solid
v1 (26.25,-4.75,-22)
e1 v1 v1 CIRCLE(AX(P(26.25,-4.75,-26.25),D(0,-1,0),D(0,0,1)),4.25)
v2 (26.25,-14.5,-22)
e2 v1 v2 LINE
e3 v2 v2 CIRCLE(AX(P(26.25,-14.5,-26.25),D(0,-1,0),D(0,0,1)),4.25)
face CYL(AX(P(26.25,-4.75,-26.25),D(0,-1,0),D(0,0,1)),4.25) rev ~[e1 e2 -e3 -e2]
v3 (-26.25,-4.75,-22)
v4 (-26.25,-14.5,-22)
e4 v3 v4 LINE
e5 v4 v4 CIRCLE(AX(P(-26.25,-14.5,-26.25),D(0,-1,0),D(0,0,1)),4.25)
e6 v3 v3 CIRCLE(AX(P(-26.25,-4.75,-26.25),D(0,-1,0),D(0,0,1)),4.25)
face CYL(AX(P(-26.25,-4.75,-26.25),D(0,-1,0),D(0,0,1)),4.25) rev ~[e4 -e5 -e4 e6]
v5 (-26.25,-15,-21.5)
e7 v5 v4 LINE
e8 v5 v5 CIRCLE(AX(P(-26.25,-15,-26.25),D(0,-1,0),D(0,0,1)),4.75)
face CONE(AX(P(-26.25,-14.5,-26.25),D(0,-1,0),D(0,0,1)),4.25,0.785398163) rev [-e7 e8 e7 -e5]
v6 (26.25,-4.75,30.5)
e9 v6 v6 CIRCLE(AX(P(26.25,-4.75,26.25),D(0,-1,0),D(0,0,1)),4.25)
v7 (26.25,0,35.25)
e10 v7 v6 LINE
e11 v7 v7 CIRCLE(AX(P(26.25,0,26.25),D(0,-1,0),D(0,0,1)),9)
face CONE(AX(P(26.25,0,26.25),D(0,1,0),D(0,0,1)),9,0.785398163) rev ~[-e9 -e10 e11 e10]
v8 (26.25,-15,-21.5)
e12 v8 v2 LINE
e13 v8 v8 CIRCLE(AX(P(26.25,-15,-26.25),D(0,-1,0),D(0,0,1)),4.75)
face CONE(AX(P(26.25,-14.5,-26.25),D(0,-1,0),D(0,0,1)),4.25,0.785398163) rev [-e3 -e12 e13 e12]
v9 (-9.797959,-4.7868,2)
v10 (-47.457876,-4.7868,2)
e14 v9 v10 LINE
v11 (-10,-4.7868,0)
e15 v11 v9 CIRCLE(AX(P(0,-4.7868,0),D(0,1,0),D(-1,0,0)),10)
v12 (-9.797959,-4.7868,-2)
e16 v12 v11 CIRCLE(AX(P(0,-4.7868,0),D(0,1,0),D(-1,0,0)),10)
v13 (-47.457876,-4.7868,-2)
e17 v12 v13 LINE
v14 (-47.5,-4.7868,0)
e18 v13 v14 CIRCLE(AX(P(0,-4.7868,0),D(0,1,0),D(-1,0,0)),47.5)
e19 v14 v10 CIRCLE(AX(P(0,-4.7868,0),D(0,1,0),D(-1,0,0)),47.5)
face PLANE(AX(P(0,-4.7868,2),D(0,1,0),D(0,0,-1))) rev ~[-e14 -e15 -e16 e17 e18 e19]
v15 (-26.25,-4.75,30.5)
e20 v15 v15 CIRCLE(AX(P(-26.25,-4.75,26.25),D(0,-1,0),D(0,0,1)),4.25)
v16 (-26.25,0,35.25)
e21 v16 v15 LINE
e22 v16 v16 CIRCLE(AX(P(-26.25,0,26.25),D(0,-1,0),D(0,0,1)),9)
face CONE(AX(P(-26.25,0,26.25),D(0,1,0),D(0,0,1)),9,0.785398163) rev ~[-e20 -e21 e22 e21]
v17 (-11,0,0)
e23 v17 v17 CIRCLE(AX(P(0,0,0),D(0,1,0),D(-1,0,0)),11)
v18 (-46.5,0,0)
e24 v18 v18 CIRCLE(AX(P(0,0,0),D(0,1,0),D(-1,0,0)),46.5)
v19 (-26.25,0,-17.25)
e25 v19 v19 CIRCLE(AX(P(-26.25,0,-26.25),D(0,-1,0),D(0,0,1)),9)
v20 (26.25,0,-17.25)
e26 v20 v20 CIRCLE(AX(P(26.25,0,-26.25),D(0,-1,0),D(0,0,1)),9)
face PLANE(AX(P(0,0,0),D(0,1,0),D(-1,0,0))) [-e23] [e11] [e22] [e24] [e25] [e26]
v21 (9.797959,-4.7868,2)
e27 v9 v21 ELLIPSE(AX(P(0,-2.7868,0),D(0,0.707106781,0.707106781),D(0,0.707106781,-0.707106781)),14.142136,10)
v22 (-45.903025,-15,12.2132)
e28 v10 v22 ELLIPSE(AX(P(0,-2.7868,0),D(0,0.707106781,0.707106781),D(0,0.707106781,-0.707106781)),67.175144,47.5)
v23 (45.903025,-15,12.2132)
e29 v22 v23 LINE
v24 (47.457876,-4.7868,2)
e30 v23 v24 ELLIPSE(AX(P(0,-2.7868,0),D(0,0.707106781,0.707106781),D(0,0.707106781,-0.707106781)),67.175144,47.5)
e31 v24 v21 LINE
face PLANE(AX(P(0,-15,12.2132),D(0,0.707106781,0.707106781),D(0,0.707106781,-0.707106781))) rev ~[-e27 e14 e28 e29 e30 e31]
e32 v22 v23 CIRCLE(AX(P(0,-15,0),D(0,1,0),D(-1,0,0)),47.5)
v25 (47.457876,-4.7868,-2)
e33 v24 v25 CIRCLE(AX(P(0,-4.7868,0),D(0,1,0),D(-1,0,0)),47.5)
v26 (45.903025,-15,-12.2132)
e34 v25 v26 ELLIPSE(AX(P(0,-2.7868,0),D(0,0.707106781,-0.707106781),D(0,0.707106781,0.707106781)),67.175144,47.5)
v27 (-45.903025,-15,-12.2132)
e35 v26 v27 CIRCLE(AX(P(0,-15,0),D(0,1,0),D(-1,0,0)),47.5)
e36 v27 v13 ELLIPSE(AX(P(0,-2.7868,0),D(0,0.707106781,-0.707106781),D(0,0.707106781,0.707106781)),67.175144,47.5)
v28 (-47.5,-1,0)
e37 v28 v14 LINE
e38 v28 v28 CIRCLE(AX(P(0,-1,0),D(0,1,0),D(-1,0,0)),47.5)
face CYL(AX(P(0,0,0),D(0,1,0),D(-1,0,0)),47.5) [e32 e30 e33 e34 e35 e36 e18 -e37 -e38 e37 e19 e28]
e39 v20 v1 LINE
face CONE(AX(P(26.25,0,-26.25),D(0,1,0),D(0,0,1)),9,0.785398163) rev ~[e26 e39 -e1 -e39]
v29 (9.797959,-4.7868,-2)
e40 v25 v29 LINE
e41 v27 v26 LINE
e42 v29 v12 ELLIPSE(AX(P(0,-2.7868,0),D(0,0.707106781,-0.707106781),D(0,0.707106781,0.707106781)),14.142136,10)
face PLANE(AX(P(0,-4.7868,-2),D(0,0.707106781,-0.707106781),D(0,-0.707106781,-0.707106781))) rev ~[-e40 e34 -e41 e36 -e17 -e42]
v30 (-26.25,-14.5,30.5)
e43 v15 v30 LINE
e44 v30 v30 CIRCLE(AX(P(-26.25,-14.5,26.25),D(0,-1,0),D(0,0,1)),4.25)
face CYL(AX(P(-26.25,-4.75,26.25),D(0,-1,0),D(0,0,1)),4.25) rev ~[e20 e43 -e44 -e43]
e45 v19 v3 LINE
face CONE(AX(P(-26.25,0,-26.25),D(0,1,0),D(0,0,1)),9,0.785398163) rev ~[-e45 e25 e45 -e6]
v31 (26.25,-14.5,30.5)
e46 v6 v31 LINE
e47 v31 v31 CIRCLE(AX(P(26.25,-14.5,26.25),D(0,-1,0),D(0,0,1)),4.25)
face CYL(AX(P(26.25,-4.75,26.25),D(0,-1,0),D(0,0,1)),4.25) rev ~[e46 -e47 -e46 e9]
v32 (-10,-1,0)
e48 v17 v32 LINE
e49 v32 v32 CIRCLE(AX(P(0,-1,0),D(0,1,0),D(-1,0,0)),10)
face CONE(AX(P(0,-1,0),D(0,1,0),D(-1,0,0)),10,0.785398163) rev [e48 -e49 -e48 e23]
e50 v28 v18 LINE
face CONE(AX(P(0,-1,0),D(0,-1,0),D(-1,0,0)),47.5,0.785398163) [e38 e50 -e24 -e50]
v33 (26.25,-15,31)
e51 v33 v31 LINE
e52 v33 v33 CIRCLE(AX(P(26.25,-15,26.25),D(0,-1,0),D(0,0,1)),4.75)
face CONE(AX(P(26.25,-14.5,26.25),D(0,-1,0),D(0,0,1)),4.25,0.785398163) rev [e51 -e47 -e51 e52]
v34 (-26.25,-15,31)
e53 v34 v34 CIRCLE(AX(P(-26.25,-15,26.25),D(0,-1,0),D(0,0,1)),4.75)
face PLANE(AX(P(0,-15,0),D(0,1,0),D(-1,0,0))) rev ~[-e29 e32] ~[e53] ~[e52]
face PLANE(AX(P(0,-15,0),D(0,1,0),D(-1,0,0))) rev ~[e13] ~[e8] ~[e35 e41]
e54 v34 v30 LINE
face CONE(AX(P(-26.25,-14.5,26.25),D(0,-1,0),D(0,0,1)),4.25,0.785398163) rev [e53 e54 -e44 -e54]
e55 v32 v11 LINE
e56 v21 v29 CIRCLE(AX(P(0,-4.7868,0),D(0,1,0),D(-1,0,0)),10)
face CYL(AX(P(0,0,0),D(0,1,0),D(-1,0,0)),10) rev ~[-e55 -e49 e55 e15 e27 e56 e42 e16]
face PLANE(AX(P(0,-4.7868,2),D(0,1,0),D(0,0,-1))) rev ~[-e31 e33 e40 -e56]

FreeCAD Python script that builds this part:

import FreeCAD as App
import Part
import Sketcher
from FreeCAD import Vector
Q = App.Units.Quantity


def edges_at(feature, points):
    """Names of the edges that pass closest to the given points."""
    edges = feature.Shape.Edges
    near = lambda p: min(range(len(edges)), key=lambda i: edges[i].distToShape(Part.Vertex(*p))[0])
    return sorted({f"Edge{near(p) + 1}" for p in points})


def add_polygon(sketch, points):
    """Adds a closed chain of lines whose ends are joined by coincident constraints."""
    first, n = sketch.GeometryCount, len(points)
    for a, b in zip(points, points[1:] + points[:1]):
        sketch.addGeometry(Part.LineSegment(App.Vector(*a, 0), App.Vector(*b, 0)), False)
    for i in range(n):
        sketch.addConstraint(Sketcher.Constraint("Coincident", first + i, 2, first + (i + 1) % n, 1))

doc = App.newDocument("Part")
body = doc.addObject("PartDesign::Body", "Body")

# Sketch on XZ plane
sketch1 = body.newObject("Sketcher::SketchObject", "Sketch")
sketch1.AttachmentSupport = (doc.getObject("XZ_Plane"), [""])
sketch1.MapMode = "FlatFace"
sketch1.addGeometry(Part.Circle(Vector(0, 0, 0), Vector(0, 0, 1), 47.5), False)
sketch1.addGeometry(Part.Circle(Vector(0, 0, 0), Vector(0, 0, 1), 10), False)
sketch1.addConstraint(Sketcher.Constraint("Coincident", 0, 3, -1, 1))
sketch1.addConstraint(Sketcher.Constraint("Coincident", 1, 3, -1, 1))
sketch1.addConstraint(Sketcher.Constraint("Diameter", 0, Q("95 mm")))
sketch1.addConstraint(Sketcher.Constraint("Diameter", 1, Q("20 mm")))
pad1 = body.newObject("PartDesign::Pad", "Pad")
pad1.Profile = sketch1
pad1.Length = 15

# Sketch on XZ plane
sketch2 = body.newObject("Sketcher::SketchObject", "Sketch001")
sketch2.AttachmentSupport = (doc.getObject("XZ_Plane"), [""])
sketch2.MapMode = "FlatFace"
sketch2.addGeometry(Part.Circle(Vector(-26.25, -26.25, 0), Vector(0, 0, 1), 4.25), False)
sketch2.addGeometry(Part.Circle(Vector(26.25, -26.25, 0), Vector(0, 0, 1), 4.25), False)
sketch2.addGeometry(Part.Circle(Vector(26.25, 26.25, 0), Vector(0, 0, 1), 4.25), False)
sketch2.addGeometry(Part.Circle(Vector(-26.25, 26.25, 0), Vector(0, 0, 1), 4.25), False)
sketch2.addConstraint(Sketcher.Constraint("Equal", 0, 1))
sketch2.addConstraint(Sketcher.Constraint("Equal", 1, 2))
sketch2.addConstraint(Sketcher.Constraint("Equal", 2, 3))
sketch2.addConstraint(Sketcher.Constraint("Symmetric", 0, 3, 2, 3, -1, 1))
sketch2.addConstraint(Sketcher.Constraint("Symmetric", 1, 3, 3, 3, -1, 1))
sketch2.addConstraint(Sketcher.Constraint("Symmetric", 0, 3, 1, 3, -2))
sketch2.addConstraint(Sketcher.Constraint("Diameter", 0, Q("8.5 mm")))
sketch2.addConstraint(Sketcher.Constraint("DistanceX", 0, 3, 1, 3, Q("52.5 mm")))
sketch2.addConstraint(Sketcher.Constraint("DistanceY", 1, 3, 2, 3, Q("52.5 mm")))
doc.recompute()
hole = body.newObject("PartDesign::Hole", "Hole")
hole.Profile = sketch2
hole.ThreadType = "None"
hole.Diameter = 8.5
hole.DepthType = "ThroughAll"
hole.HoleCutType = "Countersink"
hole.HoleCutDiameter = 18
hole.HoleCutCountersinkAngle = 90
hole.Reversed = True

# Sketch on YZ plane
sketch3 = body.newObject("Sketcher::SketchObject", "Sketch002")
sketch3.AttachmentSupport = (doc.getObject("YZ_Plane"), [""])
sketch3.MapMode = "FlatFace"
add_polygon(sketch3, [(-4.7868, 2), (-15, 12.2132), (-15, -12.2132), (-4.7868, -2)])  # lines 0-3
sketch3.addConstraint(Sketcher.Constraint("Vertical", 1))
sketch3.addConstraint(Sketcher.Constraint("Vertical", 3))
sketch3.addConstraint(Sketcher.Constraint("Perpendicular", 0, 2))
sketch3.addConstraint(Sketcher.Constraint("Equal", 0, 2))
sketch3.addConstraint(Sketcher.Constraint("DistanceY", 3, 1, 3, 2, Q("4 mm")))
sketch3.addConstraint(Sketcher.Constraint("DistanceX", 0, 2, -1, 1, Q("15 mm")))
sketch3.addConstraint(Sketcher.Constraint("DistanceY", 2, 2, -1, 1, Q("2 mm")))
sketch3.addConstraint(Sketcher.Constraint("DistanceY", 1, 2, 1, 1, Q("24.4264 mm")))
pocket1 = body.newObject("PartDesign::Pocket", "Pocket")
pocket1.Profile = sketch3
pocket1.Type = "ThroughAll"
pocket1.Midplane = True
doc.recompute()

chamfer = body.newObject("PartDesign::Chamfer", "Chamfer")
chamfer.Base = (pocket1, edges_at(pocket1, [(10, 0, 0), (47.5, 0, 0)]))
chamfer.Size = 1
doc.recompute()

chamfer2 = body.newObject("PartDesign::Chamfer", "Chamfer001")
chamfer2.Base = (chamfer, edges_at(chamfer, [
    (26.25, -15, -30.5),
    (-26.25, -15, -30.5),
    (26.25, -15, 22),
    (-26.25, -15, 22),
]))
chamfer2.Size = 0.5

doc.recompute()
